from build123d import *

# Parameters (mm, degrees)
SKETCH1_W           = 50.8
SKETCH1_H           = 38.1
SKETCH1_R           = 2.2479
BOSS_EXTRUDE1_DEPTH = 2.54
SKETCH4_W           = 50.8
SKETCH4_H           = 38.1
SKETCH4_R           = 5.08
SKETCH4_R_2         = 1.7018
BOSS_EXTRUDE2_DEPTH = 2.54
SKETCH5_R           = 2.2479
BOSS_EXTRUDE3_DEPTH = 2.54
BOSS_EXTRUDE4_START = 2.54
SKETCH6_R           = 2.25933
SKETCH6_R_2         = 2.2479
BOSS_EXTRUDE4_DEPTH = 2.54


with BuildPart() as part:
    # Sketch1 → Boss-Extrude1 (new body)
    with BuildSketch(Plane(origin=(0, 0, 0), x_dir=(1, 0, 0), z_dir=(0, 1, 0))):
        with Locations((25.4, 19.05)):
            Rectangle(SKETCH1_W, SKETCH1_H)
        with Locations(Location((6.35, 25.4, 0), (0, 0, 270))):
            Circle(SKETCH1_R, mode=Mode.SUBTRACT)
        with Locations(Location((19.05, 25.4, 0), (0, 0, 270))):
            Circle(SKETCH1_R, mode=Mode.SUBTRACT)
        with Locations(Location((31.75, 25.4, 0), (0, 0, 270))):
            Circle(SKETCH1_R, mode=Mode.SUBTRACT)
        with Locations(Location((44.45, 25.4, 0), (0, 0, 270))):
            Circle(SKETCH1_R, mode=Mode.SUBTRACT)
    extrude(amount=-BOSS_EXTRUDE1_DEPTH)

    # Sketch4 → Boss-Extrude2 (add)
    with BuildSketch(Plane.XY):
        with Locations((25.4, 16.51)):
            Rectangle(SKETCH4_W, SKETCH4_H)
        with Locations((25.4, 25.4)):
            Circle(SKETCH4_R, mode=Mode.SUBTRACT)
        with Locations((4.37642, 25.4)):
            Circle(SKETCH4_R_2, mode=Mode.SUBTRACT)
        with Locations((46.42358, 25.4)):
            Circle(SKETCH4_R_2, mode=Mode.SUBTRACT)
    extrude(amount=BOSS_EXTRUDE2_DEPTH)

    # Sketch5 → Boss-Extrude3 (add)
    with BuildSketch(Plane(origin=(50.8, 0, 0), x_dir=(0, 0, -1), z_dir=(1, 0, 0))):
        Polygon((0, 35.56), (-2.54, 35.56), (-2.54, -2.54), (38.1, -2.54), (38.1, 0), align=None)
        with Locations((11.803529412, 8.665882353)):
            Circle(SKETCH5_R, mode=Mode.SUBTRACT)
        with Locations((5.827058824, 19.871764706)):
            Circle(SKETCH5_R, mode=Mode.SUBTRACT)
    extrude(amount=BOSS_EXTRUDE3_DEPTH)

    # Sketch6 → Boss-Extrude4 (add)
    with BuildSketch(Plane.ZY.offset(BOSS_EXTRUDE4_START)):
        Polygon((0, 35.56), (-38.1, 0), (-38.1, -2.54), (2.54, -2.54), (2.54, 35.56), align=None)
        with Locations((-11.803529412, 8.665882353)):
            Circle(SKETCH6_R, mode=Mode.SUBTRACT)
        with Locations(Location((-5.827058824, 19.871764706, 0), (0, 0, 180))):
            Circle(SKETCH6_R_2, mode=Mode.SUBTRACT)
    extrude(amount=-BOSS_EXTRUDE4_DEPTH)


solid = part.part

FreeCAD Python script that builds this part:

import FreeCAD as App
import Part
import Sketcher
from FreeCAD import Vector
Q = App.Units.Quantity

doc = App.newDocument("Part")
body = doc.addObject("PartDesign::Body", "Body")

# Sketch on XZ plane
sketch1 = body.newObject("Sketcher::SketchObject", "Sketch")
sketch1.AttachmentSupport = (doc.getObject("XZ_Plane"), [""])
sketch1.MapMode = "FlatFace"
sketch1.addGeometry(Part.LineSegment(Vector(0, -38.1, 0), Vector(0, 0, 0)), False)
sketch1.addGeometry(Part.LineSegment(Vector(0, 0, 0), Vector(50.8, 0, 0)), False)
sketch1.addGeometry(Part.LineSegment(Vector(50.8, 0, 0), Vector(50.8, -38.1, 0)), False)
sketch1.addGeometry(Part.LineSegment(Vector(50.8, -38.1, 0), Vector(0, -38.1, 0)), False)
sketch1.addGeometry(Part.Circle(Vector(6.3, -25.4, 0), Vector(0, 0, 1), 2.2), False)
sketch1.addGeometry(Part.Circle(Vector(19.1, -25.4, 0), Vector(0, 0, 1), 2.2), False)
sketch1.addGeometry(Part.Circle(Vector(31.8, -25.4, 0), Vector(0, 0, 1), 2.2), False)
sketch1.addGeometry(Part.Circle(Vector(44.5, -25.4, 0), Vector(0, 0, 1), 2.2), False)
sketch1.addConstraint(Sketcher.Constraint("Coincident", 0, 2, 1, 1))
sketch1.addConstraint(Sketcher.Constraint("Coincident", 1, 2, 2, 1))
sketch1.addConstraint(Sketcher.Constraint("Coincident", 2, 2, 3, 1))
sketch1.addConstraint(Sketcher.Constraint("Coincident", 3, 2, 0, 1))
sketch1.addConstraint(Sketcher.Constraint("Vertical", 0))
sketch1.addConstraint(Sketcher.Constraint("Horizontal", 1))
sketch1.addConstraint(Sketcher.Constraint("Vertical", 2))
sketch1.addConstraint(Sketcher.Constraint("Horizontal", 3))
sketch1.addConstraint(Sketcher.Constraint("Coincident", 0, 2, -1, 1))
sketch1.addConstraint(Sketcher.Constraint("Equal", 4, 5))
sketch1.addConstraint(Sketcher.Constraint("Equal", 5, 6))
sketch1.addConstraint(Sketcher.Constraint("Equal", 6, 7))
sketch1.addConstraint(Sketcher.Constraint("Horizontal", 4, 3, 5, 3))
sketch1.addConstraint(Sketcher.Constraint("Horizontal", 5, 3, 6, 3))
sketch1.addConstraint(Sketcher.Constraint("Horizontal", 6, 3, 7, 3))
sketch1.addConstraint(Sketcher.Constraint("DistanceX", 1, 1, 1, 2, Q("2 in")))
sketch1.addConstraint(Sketcher.Constraint("Diameter", 4, Q("0.177 in")))
sketch1.addConstraint(Sketcher.Constraint("DistanceY", 0, 1, 0, 2, Q("1.5 in")))
sketch1.addConstraint(Sketcher.Constraint("DistanceY", 4, 3, -1, 1, Q("1 in")))
sketch1.addConstraint(Sketcher.Constraint("DistanceX", 4, 3, 6, 3, Q("1 in")))
sketch1.addConstraint(Sketcher.Constraint("DistanceX", 5, 3, 7, 3, Q("1 in")))
sketch1.addConstraint(Sketcher.Constraint("DistanceX", 4, 3, 5, 3, Q("0.5 in")))
sketch1.addConstraint(Sketcher.Constraint("DistanceX", -1, 1, 4, 3, Q("0.25 in")))
pad1 = body.newObject("PartDesign::Pad", "Pad")
pad1.Profile = sketch1
pad1.Length = Q("0.1 in")

# Sketch on XY plane
sketch2 = body.newObject("Sketcher::SketchObject", "Sketch001")
sketch2.AttachmentSupport = (doc.getObject("XY_Plane"), [""])
sketch2.MapMode = "FlatFace"
sketch2.addGeometry(Part.LineSegment(Vector(0, 35.6, 0), Vector(0, -2.5, 0)), False)
sketch2.addGeometry(Part.LineSegment(Vector(0, -2.5, 0), Vector(50.8, -2.5, 0)), False)
sketch2.addGeometry(Part.LineSegment(Vector(50.8, -2.5, 0), Vector(50.8, 35.6, 0)), False)
sketch2.addGeometry(Part.LineSegment(Vector(50.8, 35.6, 0), Vector(0, 35.6, 0)), False)
sketch2.addGeometry(Part.Circle(Vector(4.4, 25.4, 0), Vector(0, 0, 1), 1.7), False)
sketch2.addGeometry(Part.Circle(Vector(25.4, 25.4, 0), Vector(0, 0, 1), 5.1), False)
sketch2.addGeometry(Part.Circle(Vector(46.4, 25.4, 0), Vector(0, 0, 1), 1.7), False)
sketch2.addConstraint(Sketcher.Constraint("Coincident", 0, 2, 1, 1))
sketch2.addConstraint(Sketcher.Constraint("Coincident", 1, 2, 2, 1))
sketch2.addConstraint(Sketcher.Constraint("Coincident", 2, 2, 3, 1))
sketch2.addConstraint(Sketcher.Constraint("Coincident", 3, 2, 0, 1))
sketch2.addConstraint(Sketcher.Constraint("Vertical", 0))
sketch2.addConstraint(Sketcher.Constraint("Horizontal", 1))
sketch2.addConstraint(Sketcher.Constraint("Vertical", 2))
sketch2.addConstraint(Sketcher.Constraint("Horizontal", 3))
sketch2.addConstraint(Sketcher.Constraint("Equal", 4, 6))
sketch2.addConstraint(Sketcher.Constraint("PointOnObject", 0, 2, -2))
sketch2.addConstraint(Sketcher.Constraint("Horizontal", 4, 3, 5, 3))
sketch2.addConstraint(Sketcher.Constraint("Horizontal", 5, 3, 6, 3))
sketch2.addConstraint(Sketcher.Constraint("Diameter", 5, Q("0.4 in")))
sketch2.addConstraint(Sketcher.Constraint("DistanceX", 1, 1, 1, 2, Q("2 in")))
sketch2.addConstraint(Sketcher.Constraint("Diameter", 4, Q("0.134 in")))
sketch2.addConstraint(Sketcher.Constraint("DistanceY", 0, 2, 0, 1, Q("1.5 in")))
sketch2.addConstraint(Sketcher.Constraint("DistanceY", -1, 1, 4, 3, Q("1 in")))
sketch2.addConstraint(Sketcher.Constraint("DistanceX", -1, 1, 5, 3, Q("1 in")))
sketch2.addConstraint(Sketcher.Constraint("DistanceY", 0, 2, -1, 1, Q("0.1 in")))
sketch2.addConstraint(Sketcher.Constraint("DistanceX", -1, 1, 4, 3, Q("0.1723 in")))
sketch2.addConstraint(Sketcher.Constraint("DistanceX", -1, 1, 6, 3, Q("1.8277 in")))
pad2 = body.newObject("PartDesign::Pad", "Pad001")
pad2.Profile = sketch2
pad2.Length = Q("0.1 in")

# Sketch on YZ plane
sketch3 = body.newObject("Sketcher::SketchObject", "Sketch002")
sketch3.AttachmentSupport = (doc.getObject("YZ_Plane"), [""])
sketch3.MapMode = "FlatFace"
sketch3.AttachmentOffset = App.Placement(Vector(0, 0, 2 * 25.4), App.Rotation())
sketch3.addGeometry(Part.LineSegment(Vector(35.6, 0, 0), Vector(35.6, 2.5, 0)), False)
sketch3.addGeometry(Part.LineSegment(Vector(35.6, 2.5, 0), Vector(-2.5, 2.5, 0)), False)
sketch3.addGeometry(Part.LineSegment(Vector(-2.5, 2.5, 0), Vector(-2.5, -38.1, 0)), False)
sketch3.addGeometry(Part.LineSegment(Vector(-2.5, -38.1, 0), Vector(0, -38.1, 0)), False)
sketch3.addGeometry(Part.LineSegment(Vector(0, -38.1, 0), Vector(35.6, 0, 0)), False)
sketch3.addGeometry(Part.Circle(Vector(8.7, -11.8, 0), Vector(0, 0, 1), 2.2), False)
sketch3.addGeometry(Part.Circle(Vector(19.9, -5.8, 0), Vector(0, 0, 1), 2.2), False)
sketch3.addConstraint(Sketcher.Constraint("Coincident", 0, 2, 1, 1))
sketch3.addConstraint(Sketcher.Constraint("Coincident", 1, 2, 2, 1))
sketch3.addConstraint(Sketcher.Constraint("Coincident", 2, 2, 3, 1))
sketch3.addConstraint(Sketcher.Constraint("Coincident", 3, 2, 4, 1))
sketch3.addConstraint(Sketcher.Constraint("Coincident", 4, 2, 0, 1))
sketch3.addConstraint(Sketcher.Constraint("Vertical", 0))
sketch3.addConstraint(Sketcher.Constraint("Horizontal", 1))
sketch3.addConstraint(Sketcher.Constraint("Vertical", 2))
sketch3.addConstraint(Sketcher.Constraint("Horizontal", 3))
sketch3.addConstraint(Sketcher.Constraint("Equal", 5, 6))
sketch3.addConstraint(Sketcher.Constraint("PointOnObject", 3, 2, -2))
sketch3.addConstraint(Sketcher.Constraint("PointOnObject", 4, 2, -1))
sketch3.addConstraint(Sketcher.Constraint("Equal", 3, 0))
sketch3.addConstraint(Sketcher.Constraint("Diameter", 5, Q("0.177 in")))
sketch3.addConstraint(Sketcher.Constraint("DistanceX", 1, 2, 1, 1, Q("1.5 in")))
sketch3.addConstraint(Sketcher.Constraint("DistanceX", 3, 1, 3, 2, Q("0.1 in")))
sketch3.addConstraint(Sketcher.Constraint("DistanceY", 2, 2, 2, 1, Q("1.6 in")))
sketch3.addConstraint(Sketcher.Constraint("DistanceY", 5, 3, -1, 1, 11.803529))
sketch3.addConstraint(Sketcher.Constraint("DistanceY", 6, 3, -1, 1, 5.827059))
sketch3.addConstraint(Sketcher.Constraint("DistanceX", -1, 1, 5, 3, 8.665882))
sketch3.addConstraint(Sketcher.Constraint("DistanceX", -1, 1, 6, 3, 19.871765))
pad3 = body.newObject("PartDesign::Pad", "Pad002")
pad3.Profile = sketch3
pad3.Length = Q("0.1 in")

# Sketch on YZ plane
sketch4 = body.newObject("Sketcher::SketchObject", "Sketch003")
sketch4.AttachmentSupport = (doc.getObject("YZ_Plane"), [""])
sketch4.MapMode = "FlatFace"
sketch4.AttachmentOffset = App.Placement(Vector(0, 0, -0.1 * 25.4), App.Rotation())
sketch4.addGeometry(Part.LineSegment(Vector(35.6, 0, 0), Vector(0, -38.1, 0)), False)
sketch4.addGeometry(Part.LineSegment(Vector(0, -38.1, 0), Vector(-2.5, -38.1, 0)), False)
sketch4.addGeometry(Part.LineSegment(Vector(-2.5, -38.1, 0), Vector(-2.5, 2.5, 0)), False)
sketch4.addGeometry(Part.LineSegment(Vector(-2.5, 2.5, 0), Vector(35.6, 2.5, 0)), False)
sketch4.addGeometry(Part.LineSegment(Vector(35.6, 2.5, 0), Vector(35.6, 0, 0)), False)
sketch4.addGeometry(Part.Circle(Vector(8.7, -11.8, 0), Vector(0, 0, 1), 2.3), False)
sketch4.addGeometry(Part.Circle(Vector(19.9, -5.8, 0), Vector(0, 0, 1), 2.2), False)
sketch4.addConstraint(Sketcher.Constraint("Coincident", 0, 2, 1, 1))
sketch4.addConstraint(Sketcher.Constraint("Coincident", 1, 2, 2, 1))
sketch4.addConstraint(Sketcher.Constraint("Coincident", 2, 2, 3, 1))
sketch4.addConstraint(Sketcher.Constraint("Coincident", 3, 2, 4, 1))
sketch4.addConstraint(Sketcher.Constraint("Coincident", 4, 2, 0, 1))
sketch4.addConstraint(Sketcher.Constraint("Horizontal", 1))
sketch4.addConstraint(Sketcher.Constraint("Vertical", 2))
sketch4.addConstraint(Sketcher.Constraint("Horizontal", 3))
sketch4.addConstraint(Sketcher.Constraint("Vertical", 4))
sketch4.addConstraint(Sketcher.Constraint("PointOnObject", 0, 2, -2))
sketch4.addConstraint(Sketcher.Constraint("PointOnObject", 4, 2, -1))
sketch4.addConstraint(Sketcher.Constraint("Equal", 1, 4))
sketch4.addConstraint(Sketcher.Constraint("Diameter", 6, Q("0.177 in")))
sketch4.addConstraint(Sketcher.Constraint("DistanceX", 1, 2, 1, 1, Q("0.1 in")))
sketch4.addConstraint(Sketcher.Constraint("DistanceX", 3, 1, 3, 2, Q("1.5 in")))
sketch4.addConstraint(Sketcher.Constraint("DistanceY", 2, 1, 2, 2, Q("1.6 in")))
sketch4.addConstraint(Sketcher.Constraint("Diameter", 5, Q("0.1779 in")))
sketch4.addConstraint(Sketcher.Constraint("DistanceY", 5, 3, -1, 1, 11.803529))
sketch4.addConstraint(Sketcher.Constraint("DistanceY", 6, 3, -1, 1, 5.827059))
sketch4.addConstraint(Sketcher.Constraint("DistanceX", -1, 1, 5, 3, 8.665882))
sketch4.addConstraint(Sketcher.Constraint("DistanceX", -1, 1, 6, 3, 19.871765))
pad4 = body.newObject("PartDesign::Pad", "Pad003")
pad4.Profile = sketch4
pad4.Length = Q("0.1 in")

doc.recompute()
